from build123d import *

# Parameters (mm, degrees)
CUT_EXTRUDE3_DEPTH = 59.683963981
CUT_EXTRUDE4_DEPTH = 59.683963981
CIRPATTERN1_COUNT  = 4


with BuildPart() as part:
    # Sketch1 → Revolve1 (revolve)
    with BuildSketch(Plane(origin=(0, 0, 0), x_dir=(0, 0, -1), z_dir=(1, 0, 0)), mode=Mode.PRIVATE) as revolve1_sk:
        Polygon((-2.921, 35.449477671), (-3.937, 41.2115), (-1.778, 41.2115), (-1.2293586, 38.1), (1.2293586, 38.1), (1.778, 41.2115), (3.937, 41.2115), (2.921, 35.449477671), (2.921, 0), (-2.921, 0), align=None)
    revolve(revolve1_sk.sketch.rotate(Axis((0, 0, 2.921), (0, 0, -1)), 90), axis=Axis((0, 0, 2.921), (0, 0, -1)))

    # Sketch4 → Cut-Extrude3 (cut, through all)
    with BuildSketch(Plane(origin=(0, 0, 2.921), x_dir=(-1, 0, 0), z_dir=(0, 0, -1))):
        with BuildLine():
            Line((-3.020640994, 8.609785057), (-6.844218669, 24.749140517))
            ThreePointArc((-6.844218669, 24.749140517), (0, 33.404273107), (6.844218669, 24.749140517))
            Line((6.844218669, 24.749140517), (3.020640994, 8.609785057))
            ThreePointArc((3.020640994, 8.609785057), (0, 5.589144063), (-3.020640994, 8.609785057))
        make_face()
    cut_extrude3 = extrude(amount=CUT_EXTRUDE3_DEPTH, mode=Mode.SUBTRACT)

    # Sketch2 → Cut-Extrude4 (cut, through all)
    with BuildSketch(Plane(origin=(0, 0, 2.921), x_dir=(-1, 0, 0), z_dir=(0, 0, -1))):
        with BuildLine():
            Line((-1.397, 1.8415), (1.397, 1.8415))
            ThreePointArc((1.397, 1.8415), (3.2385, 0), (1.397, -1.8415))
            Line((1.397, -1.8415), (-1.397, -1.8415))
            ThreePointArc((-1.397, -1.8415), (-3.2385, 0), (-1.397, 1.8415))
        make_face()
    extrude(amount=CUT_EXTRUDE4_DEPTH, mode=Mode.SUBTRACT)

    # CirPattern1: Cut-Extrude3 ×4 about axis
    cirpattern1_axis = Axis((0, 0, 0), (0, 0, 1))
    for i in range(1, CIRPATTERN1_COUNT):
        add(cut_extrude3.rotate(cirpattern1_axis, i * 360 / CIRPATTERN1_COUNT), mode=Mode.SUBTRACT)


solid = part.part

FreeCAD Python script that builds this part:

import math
import FreeCAD as App
import Part
import Sketcher
Q = App.Units.Quantity


def add_polygon(sketch, points):
    """Adds a closed chain of lines whose ends are joined by coincident constraints."""
    first, n = sketch.GeometryCount, len(points)
    for a, b in zip(points, points[1:] + points[:1]):
        sketch.addGeometry(Part.LineSegment(App.Vector(*a, 0), App.Vector(*b, 0)), False)
    for i in range(n):
        sketch.addConstraint(Sketcher.Constraint("Coincident", first + i, 2, first + (i + 1) % n, 1))

doc = App.newDocument("Part")
body = doc.addObject("PartDesign::Body", "Body")

# Sketch on YZ plane
sketch1 = doc.addObject("Sketcher::SketchObject", "Sketch")
body.addObject(sketch1)
sketch1.AttachmentSupport = (doc.YZ_Plane, [""])
sketch1.MapMode = "FlatFace"
add_polygon(sketch1, [(41.2, 3.9), (35.4, 2.9), (0, 2.9), (0, -2.9), (35.4, -2.9), (41.2, -3.9), (41.2, -1.8), (38.1, -1.2), (38.1, 1.2), (41.2, 1.8)])  # lines 0-9
sketch1.addConstraint(Sketcher.Constraint("Horizontal", 1))
sketch1.addConstraint(Sketcher.Constraint("Vertical", 2))
sketch1.addConstraint(Sketcher.Constraint("Horizontal", 3))
sketch1.addConstraint(Sketcher.Constraint("Vertical", 5))
sketch1.addConstraint(Sketcher.Constraint("Vertical", 7))
sketch1.addConstraint(Sketcher.Constraint("Vertical", 9))
sketch1.addConstraint(Sketcher.Constraint("Symmetric", 1, 2, 2, 2, -1, 1))
sketch1.addConstraint(Sketcher.Constraint("Symmetric", 5, 2, 8, 2, -1))
sketch1.addConstraint(Sketcher.Constraint("Parallel", 4, 6))
sketch1.addConstraint(Sketcher.Constraint("Parallel", 0, 8))
sketch1.addConstraint(Sketcher.Constraint("Vertical", 0, 2, 3, 2))
sketch1.addConstraint(Sketcher.Constraint("Equal", 5, 9))
sketch1.addConstraint(Sketcher.Constraint("Angle", 0, Q("-170 deg")))
sketch1.addConstraint(Sketcher.Constraint("DistanceY", 2, 2, 2, 1, Q("0.23 in")))
sketch1.addConstraint(Sketcher.Constraint("DistanceX", -1, 1, 6, 2, Q("1.5 in")))
sketch1.addConstraint(Sketcher.Constraint("DistanceY", 5, 1, 5, 2, Q("0.085 in")))
sketch1.addConstraint(Sketcher.Constraint("DistanceY", 5, 2, -1, 1, Q("0.07 in")))
sketch1.addConstraint(Sketcher.Constraint("DistanceY", 7, 1, 7, 2, Q("0.0967999 in")))
revolution = doc.addObject("PartDesign::Revolution", "Revolution")
body.addObject(revolution)
revolution.Profile = sketch1
revolution.ReferenceAxis = (sketch1, ["V_Axis"])
revolution.Angle = 360

# Sketch on XY plane
sketch2 = doc.addObject("Sketcher::SketchObject", "Sketch001")
body.addObject(sketch2)
sketch2.AttachmentSupport = (doc.XY_Plane, [""])
sketch2.MapMode = "FlatFace"
sketch2.AttachmentOffset = App.Placement(App.Vector(0, 0, 0.115 * 25.4), App.Rotation())
sketch2.addGeometry(Part.LineSegment(App.Vector(6.844219, 24.749141, 0), App.Vector(3.020641, 8.609785, 0)), False)
sketch2.addGeometry(Part.ArcOfCircle(Part.Circle(App.Vector(0, 8.609785, 0), App.Vector(0, 0, 1), 3.020641), math.radians(180), math.radians(360)), False)
sketch2.addGeometry(Part.LineSegment(App.Vector(-3.020641, 8.609785, 0), App.Vector(-6.844219, 24.749141, 0)), False)
sketch2.addGeometry(Part.ArcOfCircle(Part.Circle(App.Vector(0, 26.370606, 0), App.Vector(0, 0, 1), 7.033667), math.radians(-13.328225), math.radians(193.328225)), False)
sketch2.addConstraint(Sketcher.Constraint("Coincident", 0, 2, 1, 2))
sketch2.addConstraint(Sketcher.Constraint("Coincident", 1, 1, 2, 1))
sketch2.addConstraint(Sketcher.Constraint("Coincident", 2, 2, 3, 2))
sketch2.addConstraint(Sketcher.Constraint("Coincident", 3, 1, 0, 1))
sketch2.addConstraint(Sketcher.Constraint("PointOnObject", 1, 3, -2))
sketch2.addConstraint(Sketcher.Constraint("PointOnObject", 3, 3, -2))
sketch2.addConstraint(Sketcher.Constraint("Radius", 1, Q("3.020641 mm")))
sketch2.addConstraint(Sketcher.Constraint("Radius", 3, Q("7.033667 mm")))
sketch2.addConstraint(Sketcher.Constraint("DistanceX", 2, 2, -1, 1, Q("6.844219 mm")))
sketch2.addConstraint(Sketcher.Constraint("DistanceY", -1, 1, 2, 2, Q("24.749141 mm")))
sketch2.addConstraint(Sketcher.Constraint("DistanceX", -1, 1, 3, 1, Q("6.844219 mm")))
sketch2.addConstraint(Sketcher.Constraint("DistanceY", 1, 3, 3, 3, Q("17.760821 mm")))
sketch2.addConstraint(Sketcher.Constraint("DistanceY", 0, 2, 3, 3, Q("17.760821 mm")))
sketch2.addConstraint(Sketcher.Constraint("DistanceY", 1, 1, 3, 3, Q("17.760821 mm")))
pocket1 = doc.addObject("PartDesign::Pocket", "Pocket")
body.addObject(pocket1)
pocket1.Profile = sketch2
pocket1.Type = "ThroughAll"

# Sketch on XY plane
sketch3 = doc.addObject("Sketcher::SketchObject", "Sketch002")
body.addObject(sketch3)
sketch3.AttachmentSupport = (doc.XY_Plane, [""])
sketch3.MapMode = "FlatFace"
sketch3.AttachmentOffset = App.Placement(App.Vector(0, 0, 0.115 * 25.4), App.Rotation())
sketch3.addGeometry(Part.LineSegment(App.Vector(-1.4, 1.8, 0), App.Vector(1.4, 1.8, 0)), False)
sketch3.addGeometry(Part.ArcOfCircle(Part.Circle(App.Vector(1.4, 0, 0), App.Vector(0, 0, 1), 1.8), math.radians(-90), math.radians(90)), False)
sketch3.addGeometry(Part.LineSegment(App.Vector(1.4, -1.8, 0), App.Vector(-1.4, -1.8, 0)), False)
sketch3.addGeometry(Part.ArcOfCircle(Part.Circle(App.Vector(-1.4, 0, 0), App.Vector(0, 0, 1), 1.8), math.radians(90), math.radians(270)), False)
sketch3.addConstraint(Sketcher.Constraint("Tangent", 0, 2, 1, 2))
sketch3.addConstraint(Sketcher.Constraint("Tangent", 1, 1, 2, 1))
sketch3.addConstraint(Sketcher.Constraint("Tangent", 2, 2, 3, 2))
sketch3.addConstraint(Sketcher.Constraint("Tangent", 3, 1, 0, 1))
sketch3.addConstraint(Sketcher.Constraint("Horizontal", 0))
sketch3.addConstraint(Sketcher.Constraint("Horizontal", 2))
sketch3.addConstraint(Sketcher.Constraint("Symmetric", 1, 3, 3, 3, -1, 1))
sketch3.addConstraint(Sketcher.Constraint("DistanceX", 0, 1, 0, 2, Q("0.11 in")))
sketch3.addConstraint(Sketcher.Constraint("Radius", 1, Q("0.0725 in")))
pocket2 = doc.addObject("PartDesign::Pocket", "Pocket001")
body.addObject(pocket2)
pocket2.Profile = sketch3
pocket2.Type = "ThroughAll"
doc.recompute()

polarpattern = doc.addObject("PartDesign::PolarPattern", "PolarPattern")
body.addObject(polarpattern)
polarpattern.Originals = [pocket1]
polarpattern.Axis = (doc.Z_Axis, [""])
polarpattern.Angle = 360
polarpattern.Occurrences = 4
body.Tip = polarpattern

doc.recompute()
